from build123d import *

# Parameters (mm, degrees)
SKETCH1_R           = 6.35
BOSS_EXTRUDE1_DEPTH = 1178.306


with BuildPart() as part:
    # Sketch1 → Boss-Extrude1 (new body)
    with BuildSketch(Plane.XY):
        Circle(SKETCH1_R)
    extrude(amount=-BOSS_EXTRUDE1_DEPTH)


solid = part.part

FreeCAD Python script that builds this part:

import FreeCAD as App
import Part
import Sketcher
from FreeCAD import Vector
Q = App.Units.Quantity

doc = App.newDocument("Part")
body = doc.addObject("PartDesign::Body", "Body")

# Sketch on XY plane
sketch1 = body.newObject("Sketcher::SketchObject", "Sketch")
sketch1.AttachmentSupport = (doc.getObject("XY_Plane"), [""])
sketch1.MapMode = "FlatFace"
sketch1.addGeometry(Part.Circle(Vector(0, 0, 0), Vector(0, 0, 1), 6), False)
sketch1.addConstraint(Sketcher.Constraint("Coincident", 0, 3, -1, 1))
sketch1.addConstraint(Sketcher.Constraint("Diameter", 0, Q("0.5 in")))
pad1 = body.newObject("PartDesign::Pad", "Pad")
pad1.Profile = sketch1
pad1.Length = Q("46.39 in")
pad1.Reversed = True

doc.recompute()
